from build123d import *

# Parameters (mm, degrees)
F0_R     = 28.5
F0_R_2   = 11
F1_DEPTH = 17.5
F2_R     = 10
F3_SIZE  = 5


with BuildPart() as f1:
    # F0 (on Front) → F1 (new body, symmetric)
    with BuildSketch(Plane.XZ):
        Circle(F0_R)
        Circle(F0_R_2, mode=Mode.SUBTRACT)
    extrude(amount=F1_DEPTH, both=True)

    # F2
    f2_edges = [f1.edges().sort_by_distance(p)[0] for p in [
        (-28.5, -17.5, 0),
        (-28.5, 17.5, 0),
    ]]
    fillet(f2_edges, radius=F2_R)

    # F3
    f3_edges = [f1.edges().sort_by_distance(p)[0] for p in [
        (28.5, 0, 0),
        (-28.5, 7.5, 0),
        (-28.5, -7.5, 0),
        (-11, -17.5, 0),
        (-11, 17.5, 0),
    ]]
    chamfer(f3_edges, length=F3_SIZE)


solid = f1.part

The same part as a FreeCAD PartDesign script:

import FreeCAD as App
import Part
import Sketcher


def edges_at(feature, points):
    """Names of the edges that pass closest to the given points."""
    edges = feature.Shape.Edges
    near = lambda p: min(range(len(edges)), key=lambda i: edges[i].distToShape(Part.Vertex(*p))[0])
    return sorted({f"Edge{near(p) + 1}" for p in points})

doc = App.newDocument("Part")
body = doc.addObject("PartDesign::Body", "Body")

# Sketch on XZ plane
sketch1 = body.newObject("Sketcher::SketchObject", "Sketch")
sketch1.AttachmentSupport = (doc.getObject("XZ_Plane"), [""])
sketch1.MapMode = "FlatFace"
sketch1.addGeometry([
    Part.Circle(App.Vector(0, 0, 0), App.Vector(0, 0, 1), 28),
    Part.Circle(App.Vector(0, 0, 0), App.Vector(0, 0, 1), 11),
], False)
sketch1.addConstraint([
    Sketcher.Constraint("Coincident", 0, 3, -1, 1),
    Sketcher.Constraint("Coincident", 1, 3, -1, 1),
    Sketcher.Constraint("Diameter", 0, 57.0),
    Sketcher.Constraint("Diameter", 1, 22.0),
])
pad1 = body.newObject("PartDesign::Pad", "Pad")
pad1.Profile = sketch1
pad1.Length = 35
pad1.Midplane = True
doc.recompute()

fillet = body.newObject("PartDesign::Fillet", "Fillet")
fillet.Base = (pad1, edges_at(pad1, [(-28.5, -17.5, 0), (-28.5, 17.5, 0)]))
fillet.Radius = 10
doc.recompute()

chamfer = body.newObject("PartDesign::Chamfer", "Chamfer")
chamfer.Base = (fillet, edges_at(fillet, [
    (28.5, 0, 0),
    (-28.5, 7.5, 0),
    (-28.5, -7.5, 0),
    (-11, -17.5, 0),
    (-11, 17.5, 0),
]))
chamfer.Size = 5

doc.recompute()
